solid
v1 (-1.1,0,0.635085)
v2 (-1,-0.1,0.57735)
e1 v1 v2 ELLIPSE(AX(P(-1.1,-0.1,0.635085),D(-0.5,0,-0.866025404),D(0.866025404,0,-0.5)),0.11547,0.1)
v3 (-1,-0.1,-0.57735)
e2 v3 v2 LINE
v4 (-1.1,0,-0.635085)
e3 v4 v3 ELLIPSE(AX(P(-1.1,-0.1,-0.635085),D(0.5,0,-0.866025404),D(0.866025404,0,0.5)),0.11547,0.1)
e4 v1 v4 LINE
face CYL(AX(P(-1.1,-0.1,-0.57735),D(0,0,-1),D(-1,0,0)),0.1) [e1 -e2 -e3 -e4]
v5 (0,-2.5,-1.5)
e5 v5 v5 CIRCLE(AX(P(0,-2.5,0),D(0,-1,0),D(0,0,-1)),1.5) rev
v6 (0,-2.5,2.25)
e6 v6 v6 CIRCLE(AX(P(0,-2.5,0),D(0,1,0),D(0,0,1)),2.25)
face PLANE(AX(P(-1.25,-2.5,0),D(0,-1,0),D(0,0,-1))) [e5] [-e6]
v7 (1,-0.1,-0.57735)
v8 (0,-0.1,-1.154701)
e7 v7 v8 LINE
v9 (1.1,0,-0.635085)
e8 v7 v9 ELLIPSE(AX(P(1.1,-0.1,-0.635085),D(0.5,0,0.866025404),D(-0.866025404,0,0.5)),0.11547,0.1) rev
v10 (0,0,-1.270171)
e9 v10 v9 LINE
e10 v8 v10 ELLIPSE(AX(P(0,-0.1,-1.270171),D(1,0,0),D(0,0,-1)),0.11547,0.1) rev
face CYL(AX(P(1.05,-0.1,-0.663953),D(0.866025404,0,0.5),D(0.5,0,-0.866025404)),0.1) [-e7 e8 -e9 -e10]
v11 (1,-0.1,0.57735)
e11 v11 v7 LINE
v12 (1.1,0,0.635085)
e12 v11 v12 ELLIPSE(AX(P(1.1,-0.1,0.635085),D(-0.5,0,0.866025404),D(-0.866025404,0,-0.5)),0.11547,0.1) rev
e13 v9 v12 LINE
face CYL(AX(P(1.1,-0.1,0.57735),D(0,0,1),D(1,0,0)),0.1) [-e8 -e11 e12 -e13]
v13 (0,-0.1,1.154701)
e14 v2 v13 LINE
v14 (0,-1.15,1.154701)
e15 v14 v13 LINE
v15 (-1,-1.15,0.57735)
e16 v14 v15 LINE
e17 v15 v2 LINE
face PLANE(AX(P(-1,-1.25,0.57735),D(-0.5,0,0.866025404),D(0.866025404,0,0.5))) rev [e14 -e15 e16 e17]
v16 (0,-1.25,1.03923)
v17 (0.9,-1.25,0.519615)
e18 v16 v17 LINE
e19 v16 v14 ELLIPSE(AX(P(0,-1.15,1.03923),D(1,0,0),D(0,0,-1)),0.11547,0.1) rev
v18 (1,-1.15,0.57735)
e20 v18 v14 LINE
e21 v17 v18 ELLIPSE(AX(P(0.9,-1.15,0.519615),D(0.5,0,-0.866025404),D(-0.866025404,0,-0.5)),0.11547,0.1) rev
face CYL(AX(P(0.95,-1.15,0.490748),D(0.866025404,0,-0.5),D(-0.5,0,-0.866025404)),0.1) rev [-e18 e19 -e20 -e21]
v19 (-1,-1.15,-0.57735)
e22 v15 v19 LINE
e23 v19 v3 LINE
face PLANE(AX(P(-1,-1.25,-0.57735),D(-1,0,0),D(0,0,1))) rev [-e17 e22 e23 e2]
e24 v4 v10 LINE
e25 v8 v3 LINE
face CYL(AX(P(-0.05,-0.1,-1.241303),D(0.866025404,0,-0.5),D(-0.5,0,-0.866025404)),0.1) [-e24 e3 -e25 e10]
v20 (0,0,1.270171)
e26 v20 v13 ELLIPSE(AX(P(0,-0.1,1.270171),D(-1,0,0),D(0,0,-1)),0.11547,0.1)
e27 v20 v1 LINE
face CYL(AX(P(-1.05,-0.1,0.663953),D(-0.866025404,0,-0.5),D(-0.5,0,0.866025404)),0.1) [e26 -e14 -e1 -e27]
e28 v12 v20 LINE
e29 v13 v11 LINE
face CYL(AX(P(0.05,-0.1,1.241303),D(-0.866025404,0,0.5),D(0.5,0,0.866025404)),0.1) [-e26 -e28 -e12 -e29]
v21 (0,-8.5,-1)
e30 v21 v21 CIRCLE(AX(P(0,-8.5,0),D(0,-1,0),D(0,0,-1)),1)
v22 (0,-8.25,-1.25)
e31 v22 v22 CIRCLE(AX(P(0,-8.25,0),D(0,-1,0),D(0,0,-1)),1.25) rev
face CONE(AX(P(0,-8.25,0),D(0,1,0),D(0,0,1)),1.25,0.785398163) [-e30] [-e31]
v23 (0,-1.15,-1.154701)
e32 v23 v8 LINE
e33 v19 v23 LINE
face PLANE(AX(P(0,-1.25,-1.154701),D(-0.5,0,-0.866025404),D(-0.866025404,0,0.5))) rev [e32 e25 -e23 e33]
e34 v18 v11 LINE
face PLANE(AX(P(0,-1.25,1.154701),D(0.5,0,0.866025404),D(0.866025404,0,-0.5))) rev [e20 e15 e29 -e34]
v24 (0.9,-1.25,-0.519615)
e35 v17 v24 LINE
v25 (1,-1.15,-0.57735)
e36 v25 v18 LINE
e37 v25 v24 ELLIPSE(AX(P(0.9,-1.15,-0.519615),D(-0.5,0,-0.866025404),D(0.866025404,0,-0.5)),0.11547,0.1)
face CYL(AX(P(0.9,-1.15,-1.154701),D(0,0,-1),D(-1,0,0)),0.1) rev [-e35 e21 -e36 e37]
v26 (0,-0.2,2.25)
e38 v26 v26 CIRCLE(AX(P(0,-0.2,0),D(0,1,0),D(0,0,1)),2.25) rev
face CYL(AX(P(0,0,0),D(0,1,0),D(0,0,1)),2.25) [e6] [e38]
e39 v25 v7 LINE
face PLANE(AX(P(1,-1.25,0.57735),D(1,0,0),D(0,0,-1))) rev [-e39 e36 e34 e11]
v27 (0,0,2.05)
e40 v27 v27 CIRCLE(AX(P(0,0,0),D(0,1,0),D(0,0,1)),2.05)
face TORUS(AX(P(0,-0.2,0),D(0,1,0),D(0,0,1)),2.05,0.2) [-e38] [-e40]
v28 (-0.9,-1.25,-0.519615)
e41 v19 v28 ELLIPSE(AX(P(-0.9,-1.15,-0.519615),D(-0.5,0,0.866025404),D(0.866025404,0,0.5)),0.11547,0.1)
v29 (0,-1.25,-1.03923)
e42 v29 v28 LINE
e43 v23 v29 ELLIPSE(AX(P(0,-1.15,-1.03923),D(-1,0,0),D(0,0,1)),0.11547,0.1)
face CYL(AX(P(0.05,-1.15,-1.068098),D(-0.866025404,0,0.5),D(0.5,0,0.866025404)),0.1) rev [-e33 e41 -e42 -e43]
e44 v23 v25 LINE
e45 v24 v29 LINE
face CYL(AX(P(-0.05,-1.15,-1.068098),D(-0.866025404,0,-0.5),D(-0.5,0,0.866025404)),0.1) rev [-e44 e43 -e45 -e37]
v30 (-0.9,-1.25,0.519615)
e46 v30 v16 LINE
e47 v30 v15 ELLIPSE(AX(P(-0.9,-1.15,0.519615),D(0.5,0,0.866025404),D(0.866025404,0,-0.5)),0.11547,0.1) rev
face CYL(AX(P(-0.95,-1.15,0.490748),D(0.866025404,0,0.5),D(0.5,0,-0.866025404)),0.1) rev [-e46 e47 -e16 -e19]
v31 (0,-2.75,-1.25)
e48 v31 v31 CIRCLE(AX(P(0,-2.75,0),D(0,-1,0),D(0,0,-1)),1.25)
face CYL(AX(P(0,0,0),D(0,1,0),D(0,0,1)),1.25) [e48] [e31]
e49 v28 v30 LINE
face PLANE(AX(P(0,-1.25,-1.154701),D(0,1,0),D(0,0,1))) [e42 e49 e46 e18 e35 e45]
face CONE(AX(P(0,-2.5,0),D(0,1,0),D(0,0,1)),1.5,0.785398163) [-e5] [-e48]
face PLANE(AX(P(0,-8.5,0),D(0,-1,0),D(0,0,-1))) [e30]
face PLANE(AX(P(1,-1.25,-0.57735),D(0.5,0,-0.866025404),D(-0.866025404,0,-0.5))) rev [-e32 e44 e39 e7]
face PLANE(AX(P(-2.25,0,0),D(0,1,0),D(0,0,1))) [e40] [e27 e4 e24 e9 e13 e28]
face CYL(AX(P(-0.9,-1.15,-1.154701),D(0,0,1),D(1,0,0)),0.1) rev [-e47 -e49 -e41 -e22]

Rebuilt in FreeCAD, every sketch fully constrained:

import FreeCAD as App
import Part
import Sketcher

V = App.Vector
Q = App.Units.Quantity


def edges_at(feature, points):
    """Names of the edges that pass closest to the given points."""
    edges = feature.Shape.Edges
    near = lambda p: min(range(len(edges)), key=lambda i: edges[i].distToShape(Part.Vertex(*p))[0])
    return sorted({f"Edge{near(p) + 1}" for p in points})


def add_polygon(sketch, points):
    """Adds a closed chain of lines whose ends are joined by coincident constraints."""
    first, n = sketch.GeometryCount, len(points)
    for a, b in zip(points, points[1:] + points[:1]):
        sketch.addGeometry(Part.LineSegment(App.Vector(*a, 0), App.Vector(*b, 0)), False)
    for i in range(n):
        sketch.addConstraint(Sketcher.Constraint("Coincident", first + i, 2, first + (i + 1) % n, 1))

doc = App.newDocument("Part")
body = doc.addObject("PartDesign::Body", "Body")

# Sketch on XY plane
sketch1 = body.newObject("Sketcher::SketchObject", "Sketch")
sketch1.AttachmentSupport = (doc.getObject("XY_Plane"), [""])
sketch1.MapMode = "FlatFace"
add_polygon(sketch1, [(-1.2, -8.5), (0, -8.5), (0, 0), (-2.2, 0), (-2.2, -2.5), (-1.2, -2.5)])  # lines 0-5
sketch1.addConstraint([
    Sketcher.Constraint("Horizontal", 0),
    Sketcher.Constraint("Vertical", 1),
    Sketcher.Constraint("Horizontal", 2),
    Sketcher.Constraint("Vertical", 3),
    Sketcher.Constraint("Horizontal", 4),
    Sketcher.Constraint("Vertical", 5),
    Sketcher.Constraint("Coincident", 1, 2, -1, 1),
    Sketcher.Constraint("DistanceX", 4, 1, 4, 2, 1.0),
    Sketcher.Constraint("DistanceY", 5, 2, 5, 1, 6.0),
    Sketcher.Constraint("DistanceY", 1, 1, 1, 2, 8.5),
    Sketcher.Constraint("DistanceX", 0, 1, 0, 2, 1.25),
])
revolution = body.newObject("PartDesign::Revolution", "Revolution")
revolution.Profile = sketch1
revolution.ReferenceAxis = (sketch1, ["V_Axis"])
revolution.Angle = 360
doc.recompute()

chamfer = body.newObject("PartDesign::Chamfer", "Chamfer")
chamfer.Base = (revolution, edges_at(revolution, [(0, -2.5, -1.25), (0, -8.5, -1.25)]))
chamfer.Size = 0.25
doc.recompute()

fillet = body.newObject("PartDesign::Fillet", "Fillet")
fillet.Base = (chamfer, edges_at(chamfer, [(0, 0, -2.25)]))
fillet.Radius = 0.2

# Sketch on XZ plane
sketch2 = body.newObject("Sketcher::SketchObject", "Sketch001")
sketch2.AttachmentSupport = (doc.getObject("XZ_Plane"), [""])
sketch2.MapMode = "FlatFace"
add_polygon(sketch2, [(0, -1.2), (-1, -0.6), (-1, 0.6), (0, 1.2), (1, 0.6), (1, -0.6)])  # lines 0-5
sketch2.addConstraint([
    Sketcher.Constraint("Vertical", 1),
    Sketcher.Constraint("Vertical", 4),
    Sketcher.Constraint("Symmetric", 0, 2, 3, 2, -1, 1),
    Sketcher.Constraint("Symmetric", 2, 2, 5, 2, -1, 1),
    Sketcher.Constraint("PointOnObject", 2, 2, -2),
    Sketcher.Constraint("Parallel", 2, 5),
    Sketcher.Constraint("Horizontal", 1, 2, 3, 2),
    Sketcher.Constraint("Angle", 0, Q("150 deg")),
    Sketcher.Constraint("DistanceX", 0, 2, -1, 1, 1.0),
    Sketcher.Constraint("DistanceY", 1, 1, 1, 2, 1.154701),
])
pocket1 = body.newObject("PartDesign::Pocket", "Pocket")
pocket1.Profile = sketch2
pocket1.Length = 1.25
pocket1.Reversed = True
doc.recompute()

fillet2 = body.newObject("PartDesign::Fillet", "Fillet001")
fillet2.Base = (pocket1, edges_at(pocket1, [
    (0.5, -1.25, -0.866),
    (1, -1.25, 0),
    (0.5, -1.25, 0.866),
    (-0.5, -1.25, 0.866),
    (-1, -1.25, 0),
    (-0.5, -1.25, -0.866),
    (0.5, 0, -0.866),
    (-0.5, 0, -0.866),
    (-1, 0, 0),
    (-0.5, 0, 0.866),
    (0.5, 0, 0.866),
    (1, 0, 0),
]))
fillet2.Radius = 0.1

doc.recompute()
